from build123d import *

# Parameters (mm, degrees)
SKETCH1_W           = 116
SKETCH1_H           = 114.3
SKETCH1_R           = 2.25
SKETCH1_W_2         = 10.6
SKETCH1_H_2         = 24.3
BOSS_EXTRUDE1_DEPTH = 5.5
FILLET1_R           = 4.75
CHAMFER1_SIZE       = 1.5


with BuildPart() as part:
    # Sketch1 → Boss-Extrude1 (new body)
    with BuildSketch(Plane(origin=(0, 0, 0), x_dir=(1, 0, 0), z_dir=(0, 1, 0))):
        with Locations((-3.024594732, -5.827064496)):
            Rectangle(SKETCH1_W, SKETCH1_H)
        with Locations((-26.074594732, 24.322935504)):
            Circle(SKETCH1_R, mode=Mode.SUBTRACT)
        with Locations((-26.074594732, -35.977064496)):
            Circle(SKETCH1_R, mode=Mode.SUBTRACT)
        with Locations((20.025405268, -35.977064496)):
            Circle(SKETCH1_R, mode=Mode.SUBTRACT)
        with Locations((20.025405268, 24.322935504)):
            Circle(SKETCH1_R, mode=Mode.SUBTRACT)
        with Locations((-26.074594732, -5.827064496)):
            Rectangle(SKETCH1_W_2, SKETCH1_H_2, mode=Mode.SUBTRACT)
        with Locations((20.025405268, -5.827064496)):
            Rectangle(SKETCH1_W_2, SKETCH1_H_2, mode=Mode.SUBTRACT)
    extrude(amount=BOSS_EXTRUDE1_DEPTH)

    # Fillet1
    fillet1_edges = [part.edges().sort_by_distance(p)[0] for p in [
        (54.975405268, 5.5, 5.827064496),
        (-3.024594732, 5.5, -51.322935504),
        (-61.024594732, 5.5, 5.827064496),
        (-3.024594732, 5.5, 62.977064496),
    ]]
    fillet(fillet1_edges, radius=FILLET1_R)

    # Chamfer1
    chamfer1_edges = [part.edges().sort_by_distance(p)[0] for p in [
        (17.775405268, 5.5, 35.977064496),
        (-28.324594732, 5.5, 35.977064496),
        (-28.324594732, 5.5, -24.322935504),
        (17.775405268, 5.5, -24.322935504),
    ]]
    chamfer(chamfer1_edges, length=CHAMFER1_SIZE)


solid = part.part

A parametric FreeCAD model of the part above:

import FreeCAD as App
import Part
import Sketcher

V = App.Vector
Q = App.Units.Quantity


def edges_at(feature, points):
    """Names of the edges that pass closest to the given points."""
    edges = feature.Shape.Edges
    near = lambda p: min(range(len(edges)), key=lambda i: edges[i].distToShape(Part.Vertex(*p))[0])
    return sorted({f"Edge{near(p) + 1}" for p in points})

doc = App.newDocument("Part")
body = doc.addObject("PartDesign::Body", "Body")

sketch1 = body.newObject("Sketcher::SketchObject", "Sketch")
sketch1.AttachmentSupport = (doc.getObject("XZ_Plane"), [""])
sketch1.MapMode = "FlatFace"
sketch1.addGeometry([
    Part.LineSegment(V(-61, -51.3, 0), V(-61, 63, 0)),
    Part.LineSegment(V(-61, 63, 0), V(55, 63, 0)),
    Part.LineSegment(V(55, 63, 0), V(55, -51.3, 0)),
    Part.LineSegment(V(55, -51.3, 0), V(-61, -51.3, 0)),
    Part.Circle(V(-26.1, 36, 0), V(0, 0, 1), 2.2),
    Part.Circle(V(20, 36, 0), V(0, 0, 1), 2.2),
    Part.LineSegment(V(-20.8, 18, 0), V(-31.4, 18, 0)),
    Part.LineSegment(V(-31.4, 18, 0), V(-31.4, -6.3, 0)),
    Part.LineSegment(V(-31.4, -6.3, 0), V(-20.8, -6.3, 0)),
    Part.LineSegment(V(-20.8, -6.3, 0), V(-20.8, 18, 0)),
    Part.Circle(V(-26.1, -24.3, 0), V(0, 0, 1), 2.2),
    Part.LineSegment(V(25.3, 18, 0), V(14.7, 18, 0)),
    Part.LineSegment(V(14.7, 18, 0), V(14.7, -6.3, 0)),
    Part.LineSegment(V(14.7, -6.3, 0), V(25.3, -6.3, 0)),
    Part.LineSegment(V(25.3, -6.3, 0), V(25.3, 18, 0)),
    Part.Circle(V(20, -24.3, 0), V(0, 0, 1), 2.2),
], False)
sketch1.addConstraint([
    Sketcher.Constraint("Coincident", 0, 2, 1, 1),
    Sketcher.Constraint("Coincident", 1, 2, 2, 1),
    Sketcher.Constraint("Coincident", 2, 2, 3, 1),
    Sketcher.Constraint("Coincident", 3, 2, 0, 1),
    Sketcher.Constraint("Coincident", 6, 2, 7, 1),
    Sketcher.Constraint("Coincident", 7, 2, 8, 1),
    Sketcher.Constraint("Coincident", 8, 2, 9, 1),
    Sketcher.Constraint("Coincident", 9, 2, 6, 1),
    Sketcher.Constraint("Coincident", 11, 2, 12, 1),
    Sketcher.Constraint("Coincident", 12, 2, 13, 1),
    Sketcher.Constraint("Coincident", 13, 2, 14, 1),
    Sketcher.Constraint("Coincident", 14, 2, 11, 1),
    Sketcher.Constraint("Vertical", 0),
    Sketcher.Constraint("Horizontal", 1),
    Sketcher.Constraint("Vertical", 2),
    Sketcher.Constraint("Horizontal", 3),
    Sketcher.Constraint("Horizontal", 6),
    Sketcher.Constraint("Vertical", 7),
    Sketcher.Constraint("Horizontal", 8),
    Sketcher.Constraint("Vertical", 9),
    Sketcher.Constraint("Horizontal", 11),
    Sketcher.Constraint("Vertical", 12),
    Sketcher.Constraint("Horizontal", 13),
    Sketcher.Constraint("Vertical", 14),
    Sketcher.Constraint("Equal", 4, 5),
    Sketcher.Constraint("Equal", 5, 10),
    Sketcher.Constraint("Equal", 10, 15),
    Sketcher.Constraint("Horizontal", 4, 3, 5, 3),
    Sketcher.Constraint("Horizontal", 10, 3, 15, 3),
    Sketcher.Constraint("Horizontal", 9, 2, 11, 2),
    Sketcher.Constraint("Horizontal", 8, 2, 12, 2),
    Sketcher.Constraint("Vertical", 4, 3, 10, 3),
    Sketcher.Constraint("Vertical", 5, 3, 15, 3),
    Sketcher.Constraint("Equal", 8, 11),
    Sketcher.Constraint("Diameter", 4, Q("4.5 mm")),
    Sketcher.Constraint("DistanceX", 1, 1, 1, 2, Q("116 mm")),
    Sketcher.Constraint("DistanceX", 6, 2, 6, 1, Q("10.6 mm")),
    Sketcher.Constraint("DistanceY", 0, 1, 0, 2, Q("114.3 mm")),
    Sketcher.Constraint("DistanceY", 7, 2, 7, 1, Q("24.3 mm")),
    Sketcher.Constraint("DistanceY", 4, 3, 0, 2, Q("27 mm")),
    Sketcher.Constraint("DistanceY", 2, 2, 15, 3, Q("27 mm")),
    Sketcher.Constraint("DistanceY", 6, 2, 4, 3, Q("18 mm")),
    Sketcher.Constraint("DistanceX", 4, 3, 5, 3, Q("46.1 mm")),
    Sketcher.Constraint("DistanceX", 6, 2, 4, 3, Q("5.3 mm")),
    Sketcher.Constraint("DistanceX", 11, 2, 5, 3, Q("5.3 mm")),
    Sketcher.Constraint("DistanceX", 0, 2, 4, 3, Q("34.95 mm")),
    Sketcher.Constraint("DistanceX", 4, 3, -1, 1, Q("26.074595 mm")),
    Sketcher.Constraint("DistanceY", -1, 1, 4, 3, Q("35.977064 mm")),
])
pad1 = body.newObject("PartDesign::Pad", "Pad")
pad1.Profile = sketch1
pad1.Length = 5.5
pad1.Reversed = True
doc.recompute()

fillet = body.newObject("PartDesign::Fillet", "Fillet")
fillet.Base = (pad1, edges_at(pad1, [
    (54.975, 5.5, 5.827),
    (-3.025, 5.5, -51.323),
    (-61.025, 5.5, 5.827),
    (-3.025, 5.5, 62.977),
]))
fillet.Radius = 4.75
doc.recompute()

chamfer = body.newObject("PartDesign::Chamfer", "Chamfer")
chamfer.Base = (fillet, edges_at(fillet, [
    (17.775, 5.5, 35.977),
    (-28.325, 5.5, 35.977),
    (-28.325, 5.5, -24.323),
    (17.775, 5.5, -24.323),
]))
chamfer.Size = 1.5

doc.recompute()
